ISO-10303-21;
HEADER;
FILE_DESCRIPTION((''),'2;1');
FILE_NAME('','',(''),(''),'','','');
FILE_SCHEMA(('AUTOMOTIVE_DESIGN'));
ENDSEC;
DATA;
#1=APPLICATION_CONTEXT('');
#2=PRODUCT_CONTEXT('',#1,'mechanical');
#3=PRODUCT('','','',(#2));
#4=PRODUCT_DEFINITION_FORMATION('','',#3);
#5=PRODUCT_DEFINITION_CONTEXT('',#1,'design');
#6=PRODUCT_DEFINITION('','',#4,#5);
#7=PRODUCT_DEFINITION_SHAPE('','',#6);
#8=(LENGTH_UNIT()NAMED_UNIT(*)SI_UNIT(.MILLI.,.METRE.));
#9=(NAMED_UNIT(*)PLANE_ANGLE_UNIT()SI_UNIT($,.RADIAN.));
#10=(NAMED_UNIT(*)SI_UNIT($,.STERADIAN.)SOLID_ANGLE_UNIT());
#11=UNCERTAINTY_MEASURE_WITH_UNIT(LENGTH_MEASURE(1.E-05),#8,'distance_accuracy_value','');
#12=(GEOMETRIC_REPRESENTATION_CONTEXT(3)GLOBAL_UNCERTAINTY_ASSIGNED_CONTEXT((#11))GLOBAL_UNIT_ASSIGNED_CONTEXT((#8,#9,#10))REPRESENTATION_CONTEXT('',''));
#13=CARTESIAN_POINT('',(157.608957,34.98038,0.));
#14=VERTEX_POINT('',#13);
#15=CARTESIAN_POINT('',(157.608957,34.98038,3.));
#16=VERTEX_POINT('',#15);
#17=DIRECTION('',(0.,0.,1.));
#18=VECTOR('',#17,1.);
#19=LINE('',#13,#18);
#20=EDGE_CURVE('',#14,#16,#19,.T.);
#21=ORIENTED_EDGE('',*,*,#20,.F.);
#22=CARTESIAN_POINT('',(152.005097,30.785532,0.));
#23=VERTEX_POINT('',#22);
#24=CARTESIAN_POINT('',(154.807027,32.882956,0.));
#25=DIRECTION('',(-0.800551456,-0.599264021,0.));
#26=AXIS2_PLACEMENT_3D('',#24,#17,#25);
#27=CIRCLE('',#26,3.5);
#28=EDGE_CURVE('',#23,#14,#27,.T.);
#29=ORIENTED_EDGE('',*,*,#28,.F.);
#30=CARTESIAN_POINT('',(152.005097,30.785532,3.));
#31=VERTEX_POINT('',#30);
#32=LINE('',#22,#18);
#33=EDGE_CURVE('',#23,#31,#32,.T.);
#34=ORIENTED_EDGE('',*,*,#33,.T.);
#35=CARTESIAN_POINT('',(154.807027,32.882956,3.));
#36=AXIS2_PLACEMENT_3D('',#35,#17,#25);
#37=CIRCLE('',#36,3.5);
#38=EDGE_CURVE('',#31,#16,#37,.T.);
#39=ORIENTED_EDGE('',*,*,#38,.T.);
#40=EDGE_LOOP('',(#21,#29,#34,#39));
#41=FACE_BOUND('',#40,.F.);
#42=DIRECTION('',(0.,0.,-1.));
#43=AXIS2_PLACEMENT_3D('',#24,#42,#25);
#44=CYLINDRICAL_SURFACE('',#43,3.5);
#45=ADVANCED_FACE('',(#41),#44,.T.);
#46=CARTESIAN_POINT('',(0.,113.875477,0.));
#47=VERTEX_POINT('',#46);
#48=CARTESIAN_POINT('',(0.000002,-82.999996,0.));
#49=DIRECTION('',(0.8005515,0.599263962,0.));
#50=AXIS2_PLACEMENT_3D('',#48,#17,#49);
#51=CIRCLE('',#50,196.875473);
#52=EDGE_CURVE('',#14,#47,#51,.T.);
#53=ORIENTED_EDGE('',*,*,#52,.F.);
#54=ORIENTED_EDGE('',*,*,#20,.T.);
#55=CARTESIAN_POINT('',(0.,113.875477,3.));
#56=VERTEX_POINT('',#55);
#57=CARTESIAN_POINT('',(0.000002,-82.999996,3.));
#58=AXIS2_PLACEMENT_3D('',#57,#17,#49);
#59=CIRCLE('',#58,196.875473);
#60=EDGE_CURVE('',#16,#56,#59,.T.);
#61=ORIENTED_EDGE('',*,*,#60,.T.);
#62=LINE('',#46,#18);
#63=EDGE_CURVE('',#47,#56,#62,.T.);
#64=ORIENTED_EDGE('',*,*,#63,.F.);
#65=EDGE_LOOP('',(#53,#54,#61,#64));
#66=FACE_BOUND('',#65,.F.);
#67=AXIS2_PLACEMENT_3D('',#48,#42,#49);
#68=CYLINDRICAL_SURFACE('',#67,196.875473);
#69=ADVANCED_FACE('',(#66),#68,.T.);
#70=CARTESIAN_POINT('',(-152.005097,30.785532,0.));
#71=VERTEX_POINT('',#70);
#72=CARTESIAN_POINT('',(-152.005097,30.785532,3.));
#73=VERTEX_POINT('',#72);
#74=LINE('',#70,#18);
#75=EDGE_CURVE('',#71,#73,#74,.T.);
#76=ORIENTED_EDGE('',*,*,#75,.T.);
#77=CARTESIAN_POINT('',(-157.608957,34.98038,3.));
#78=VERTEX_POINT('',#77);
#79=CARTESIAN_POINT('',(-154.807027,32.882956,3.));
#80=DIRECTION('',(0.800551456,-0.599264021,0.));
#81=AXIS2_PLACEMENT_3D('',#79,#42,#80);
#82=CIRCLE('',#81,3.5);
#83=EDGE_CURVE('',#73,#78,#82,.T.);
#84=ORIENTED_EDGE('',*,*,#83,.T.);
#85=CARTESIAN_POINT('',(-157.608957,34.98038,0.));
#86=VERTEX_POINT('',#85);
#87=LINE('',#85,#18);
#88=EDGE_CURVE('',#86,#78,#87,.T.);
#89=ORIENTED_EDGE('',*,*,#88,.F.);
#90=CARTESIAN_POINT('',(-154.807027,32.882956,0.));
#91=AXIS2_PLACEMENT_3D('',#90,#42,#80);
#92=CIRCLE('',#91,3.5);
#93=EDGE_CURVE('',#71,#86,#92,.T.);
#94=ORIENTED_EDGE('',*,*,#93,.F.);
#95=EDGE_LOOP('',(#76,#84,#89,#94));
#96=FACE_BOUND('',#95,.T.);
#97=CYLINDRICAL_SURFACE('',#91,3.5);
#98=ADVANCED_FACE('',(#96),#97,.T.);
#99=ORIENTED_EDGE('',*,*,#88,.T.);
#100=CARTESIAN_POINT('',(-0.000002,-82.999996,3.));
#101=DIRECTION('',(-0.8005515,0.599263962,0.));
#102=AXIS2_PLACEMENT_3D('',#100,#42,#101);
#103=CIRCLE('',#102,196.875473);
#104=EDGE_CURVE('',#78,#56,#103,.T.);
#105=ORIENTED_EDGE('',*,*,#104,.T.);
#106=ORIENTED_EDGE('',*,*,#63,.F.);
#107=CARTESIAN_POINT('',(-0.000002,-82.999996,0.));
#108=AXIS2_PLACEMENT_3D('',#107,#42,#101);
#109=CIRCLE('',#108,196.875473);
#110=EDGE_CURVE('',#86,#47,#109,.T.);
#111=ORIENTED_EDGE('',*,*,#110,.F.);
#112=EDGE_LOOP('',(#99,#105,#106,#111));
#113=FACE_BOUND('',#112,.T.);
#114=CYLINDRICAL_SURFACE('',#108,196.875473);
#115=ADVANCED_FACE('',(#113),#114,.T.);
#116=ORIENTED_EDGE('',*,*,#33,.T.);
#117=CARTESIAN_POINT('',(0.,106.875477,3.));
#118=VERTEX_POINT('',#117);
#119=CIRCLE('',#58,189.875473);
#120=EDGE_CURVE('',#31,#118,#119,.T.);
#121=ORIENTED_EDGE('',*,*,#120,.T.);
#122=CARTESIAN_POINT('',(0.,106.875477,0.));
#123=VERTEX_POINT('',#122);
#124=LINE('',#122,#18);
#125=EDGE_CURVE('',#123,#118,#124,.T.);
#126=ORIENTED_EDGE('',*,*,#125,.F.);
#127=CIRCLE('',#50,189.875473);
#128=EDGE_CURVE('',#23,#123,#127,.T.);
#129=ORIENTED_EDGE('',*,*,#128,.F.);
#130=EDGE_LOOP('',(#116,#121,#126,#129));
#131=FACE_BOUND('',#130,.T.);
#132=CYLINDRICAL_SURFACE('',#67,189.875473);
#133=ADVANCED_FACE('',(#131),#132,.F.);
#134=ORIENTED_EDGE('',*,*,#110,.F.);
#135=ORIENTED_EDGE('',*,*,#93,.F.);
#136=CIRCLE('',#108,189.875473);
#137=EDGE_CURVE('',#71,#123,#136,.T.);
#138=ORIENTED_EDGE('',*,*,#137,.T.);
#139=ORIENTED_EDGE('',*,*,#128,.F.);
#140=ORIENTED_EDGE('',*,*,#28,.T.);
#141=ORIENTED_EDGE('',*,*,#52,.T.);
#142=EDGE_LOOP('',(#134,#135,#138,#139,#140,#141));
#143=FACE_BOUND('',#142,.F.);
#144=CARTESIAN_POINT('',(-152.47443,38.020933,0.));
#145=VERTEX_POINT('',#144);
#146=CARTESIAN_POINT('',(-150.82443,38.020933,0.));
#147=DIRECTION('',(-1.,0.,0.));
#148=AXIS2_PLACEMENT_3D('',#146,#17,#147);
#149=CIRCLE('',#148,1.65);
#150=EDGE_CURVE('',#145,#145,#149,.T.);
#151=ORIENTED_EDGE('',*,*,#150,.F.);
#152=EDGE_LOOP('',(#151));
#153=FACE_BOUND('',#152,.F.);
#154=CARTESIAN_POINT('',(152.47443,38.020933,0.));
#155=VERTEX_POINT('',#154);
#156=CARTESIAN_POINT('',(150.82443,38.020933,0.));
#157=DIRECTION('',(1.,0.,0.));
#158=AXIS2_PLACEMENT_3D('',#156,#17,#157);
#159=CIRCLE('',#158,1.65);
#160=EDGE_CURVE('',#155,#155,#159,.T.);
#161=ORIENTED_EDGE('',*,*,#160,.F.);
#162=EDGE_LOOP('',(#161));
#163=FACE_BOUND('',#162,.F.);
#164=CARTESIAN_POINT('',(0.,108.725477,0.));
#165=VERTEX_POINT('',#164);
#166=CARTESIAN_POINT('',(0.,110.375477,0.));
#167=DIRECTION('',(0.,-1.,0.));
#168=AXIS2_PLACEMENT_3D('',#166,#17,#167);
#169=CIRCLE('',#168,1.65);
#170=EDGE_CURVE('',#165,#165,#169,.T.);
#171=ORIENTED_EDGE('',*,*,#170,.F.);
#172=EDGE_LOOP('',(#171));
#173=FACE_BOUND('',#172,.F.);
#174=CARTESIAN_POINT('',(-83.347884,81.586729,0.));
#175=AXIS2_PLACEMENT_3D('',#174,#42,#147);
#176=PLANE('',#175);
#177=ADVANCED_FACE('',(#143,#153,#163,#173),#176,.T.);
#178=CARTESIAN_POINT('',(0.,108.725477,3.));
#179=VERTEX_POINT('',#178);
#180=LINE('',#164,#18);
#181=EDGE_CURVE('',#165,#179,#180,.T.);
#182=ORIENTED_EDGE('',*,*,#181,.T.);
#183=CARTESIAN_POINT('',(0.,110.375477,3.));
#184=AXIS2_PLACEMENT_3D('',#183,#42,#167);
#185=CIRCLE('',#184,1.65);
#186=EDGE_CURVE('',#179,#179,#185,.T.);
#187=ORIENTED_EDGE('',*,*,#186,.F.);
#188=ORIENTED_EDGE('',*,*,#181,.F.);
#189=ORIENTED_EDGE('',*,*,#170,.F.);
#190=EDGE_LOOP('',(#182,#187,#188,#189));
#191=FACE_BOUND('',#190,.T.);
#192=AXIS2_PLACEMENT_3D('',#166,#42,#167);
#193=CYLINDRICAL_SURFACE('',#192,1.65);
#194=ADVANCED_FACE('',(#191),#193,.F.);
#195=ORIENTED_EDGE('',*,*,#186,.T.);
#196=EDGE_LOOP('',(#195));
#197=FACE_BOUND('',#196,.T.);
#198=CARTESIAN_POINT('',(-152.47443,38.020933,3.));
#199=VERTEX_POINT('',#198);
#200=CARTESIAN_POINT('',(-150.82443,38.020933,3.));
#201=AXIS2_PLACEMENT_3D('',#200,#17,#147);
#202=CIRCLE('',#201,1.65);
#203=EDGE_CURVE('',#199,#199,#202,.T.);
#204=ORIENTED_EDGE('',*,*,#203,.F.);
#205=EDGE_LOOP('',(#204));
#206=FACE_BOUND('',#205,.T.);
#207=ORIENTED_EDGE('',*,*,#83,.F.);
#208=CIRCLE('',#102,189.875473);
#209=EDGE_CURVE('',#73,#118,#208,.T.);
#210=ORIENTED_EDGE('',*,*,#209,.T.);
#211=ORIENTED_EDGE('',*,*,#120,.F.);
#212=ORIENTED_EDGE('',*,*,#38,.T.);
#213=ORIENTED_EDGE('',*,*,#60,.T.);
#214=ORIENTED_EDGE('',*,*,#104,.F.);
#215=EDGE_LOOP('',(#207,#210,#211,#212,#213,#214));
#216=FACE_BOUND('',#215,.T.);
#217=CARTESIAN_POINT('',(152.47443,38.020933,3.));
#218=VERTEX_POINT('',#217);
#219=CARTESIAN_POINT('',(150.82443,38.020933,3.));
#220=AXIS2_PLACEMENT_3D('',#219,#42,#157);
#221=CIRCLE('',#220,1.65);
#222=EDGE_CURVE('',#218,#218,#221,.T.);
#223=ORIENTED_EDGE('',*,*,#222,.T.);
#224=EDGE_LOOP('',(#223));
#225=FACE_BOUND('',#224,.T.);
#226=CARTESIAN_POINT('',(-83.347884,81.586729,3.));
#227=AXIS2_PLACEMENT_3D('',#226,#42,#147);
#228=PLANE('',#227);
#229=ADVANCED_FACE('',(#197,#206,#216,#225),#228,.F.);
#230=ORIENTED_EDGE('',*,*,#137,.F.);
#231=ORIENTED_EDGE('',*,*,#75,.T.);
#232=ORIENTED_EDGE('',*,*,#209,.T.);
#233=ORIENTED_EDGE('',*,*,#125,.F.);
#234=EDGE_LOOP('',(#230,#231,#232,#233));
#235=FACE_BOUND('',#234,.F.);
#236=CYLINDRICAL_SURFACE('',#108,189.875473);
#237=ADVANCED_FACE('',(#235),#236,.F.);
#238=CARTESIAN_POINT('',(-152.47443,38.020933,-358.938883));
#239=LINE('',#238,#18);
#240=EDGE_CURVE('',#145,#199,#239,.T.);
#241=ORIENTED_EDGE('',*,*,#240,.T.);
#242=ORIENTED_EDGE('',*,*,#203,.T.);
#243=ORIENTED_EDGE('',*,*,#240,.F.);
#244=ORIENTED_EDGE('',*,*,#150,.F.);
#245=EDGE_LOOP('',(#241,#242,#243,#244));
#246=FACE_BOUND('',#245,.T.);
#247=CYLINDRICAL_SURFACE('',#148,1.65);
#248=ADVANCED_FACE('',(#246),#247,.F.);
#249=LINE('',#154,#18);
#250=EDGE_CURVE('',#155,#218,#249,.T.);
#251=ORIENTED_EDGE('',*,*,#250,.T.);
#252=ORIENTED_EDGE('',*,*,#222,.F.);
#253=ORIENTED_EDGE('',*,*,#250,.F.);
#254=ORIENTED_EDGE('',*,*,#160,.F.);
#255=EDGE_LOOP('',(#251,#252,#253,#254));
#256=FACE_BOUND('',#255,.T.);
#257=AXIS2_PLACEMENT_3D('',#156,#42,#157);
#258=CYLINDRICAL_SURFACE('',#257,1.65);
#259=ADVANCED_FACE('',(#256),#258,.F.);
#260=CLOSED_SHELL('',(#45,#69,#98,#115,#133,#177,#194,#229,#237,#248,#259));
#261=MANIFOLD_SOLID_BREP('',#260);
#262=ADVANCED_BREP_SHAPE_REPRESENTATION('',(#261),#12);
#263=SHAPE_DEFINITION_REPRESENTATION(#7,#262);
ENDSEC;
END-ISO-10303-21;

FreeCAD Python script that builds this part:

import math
import FreeCAD as App
import Part
import Sketcher

doc = App.newDocument("Part")
params = doc.addObject("Spreadsheet::Sheet", "Params")
for row, (alias, value) in enumerate([
    ("sketch1_radius", "3.5 mm"),
    ("pad1_length", "3 mm"),
    ("sketch2_diameter", "3.3 mm"),
], start=1):
    params.set(f"A{row}", alias)
    params.set(f"B{row}", "=" + value)
    params.setAlias(f"B{row}", alias)

body = doc.addObject("PartDesign::Body", "Body")

sketch1 = body.newObject("Sketcher::SketchObject", "Sketch")
sketch1.AttachmentSupport = (doc.getObject("XY_Plane"), [""])
sketch1.MapMode = "FlatFace"
sketch1.addGeometry([
    Part.ArcOfCircle(Part.Circle(App.Vector(0, 0, 0), App.Vector(0, 0, 1), 189.9), math.radians(37), math.radians(90)),
    Part.ArcOfCircle(Part.Circle(App.Vector(154.8, 115.9, 0), App.Vector(0, 0, 1), 3.5), math.radians(-143), math.radians(37)),
    Part.ArcOfCircle(Part.Circle(App.Vector(0, 0, 0), App.Vector(0, 0, 1), 196.9), math.radians(37), math.radians(90)),
    Part.LineSegment(App.Vector(0, 196.9, 0), App.Vector(0, 189.9, 0)),
], False)
sketch1.addConstraint([
    Sketcher.Constraint("Tangent", 0, 1, 1, 1),
    Sketcher.Constraint("Tangent", 1, 2, 2, 1),
    Sketcher.Constraint("Coincident", 2, 2, 3, 1),
    Sketcher.Constraint("Coincident", 3, 2, 0, 2),
    Sketcher.Constraint("Vertical", 3),
    Sketcher.Constraint("Coincident", 0, 3, -1, 1),
    Sketcher.Constraint("Coincident", 2, 3, -1, 1),
    Sketcher.Constraint("PointOnObject", 2, 2, -2),
    Sketcher.Constraint("Radius", 1, 3.5),
    Sketcher.Constraint("Radius", 0, 189.875473),
    Sketcher.Constraint("DistanceY", -1, 1, 1, 2, 117.98038),
])
sketch1.setExpression("Constraints[8]", "Params.sketch1_radius")
pad1 = body.newObject("PartDesign::Pad", "Pad")
pad1.Profile = sketch1
pad1.setExpression("Length", "Params.pad1_length")

sketch2 = body.newObject("Sketcher::SketchObject", "Sketch001")
sketch2.AttachmentSupport = (doc.getObject("XY_Plane"), [""])
sketch2.MapMode = "FlatFace"
sketch2.addGeometry([
    Part.Circle(App.Vector(150.8, 121, 0), App.Vector(0, 0, 1), 1.6),
    Part.ArcOfCircle(Part.Circle(App.Vector(0, 193.4, 0), App.Vector(0, 0, 1), 1.6), math.radians(-90), math.radians(90)),
    Part.LineSegment(App.Vector(0, 195, 0), App.Vector(0, 191.7, 0)),
], False)
sketch2.addConstraint([
    Sketcher.Constraint("Coincident", 1, 1, 2, 2),
    Sketcher.Constraint("Coincident", 2, 1, 1, 2),
    Sketcher.Constraint("Vertical", 2),
    Sketcher.Constraint("Equal", 0, 1),
    Sketcher.Constraint("PointOnObject", 1, 3, -2),
    Sketcher.Constraint("PointOnObject", 1, 1, -2),
    Sketcher.Constraint("Diameter", 0, 3.3),
    Sketcher.Constraint("DistanceX", -1, 1, 0, 3, 150.82443),
    Sketcher.Constraint("DistanceY", -1, 1, 0, 3, 121.020933),
    Sketcher.Constraint("DistanceY", -1, 1, 1, 3, 193.375477),
])
sketch2.setExpression("Constraints[6]", "Params.sketch2_diameter")
pocket1 = body.newObject("PartDesign::Pocket", "Pocket")
pocket1.Profile = sketch2
pocket1.Type = "ThroughAll"
pocket1.Midplane = True
doc.recompute()

mirrored = body.newObject("PartDesign::Mirrored", "Mirrored")
mirrored.Originals = [pad1, pocket1]
mirrored.MirrorPlane = (doc.getObject("YZ_Plane"), [""])
body.Tip = mirrored
body2 = doc.addObject("PartDesign::Body", "Body001")
doc.recompute()

body.Placement = App.Placement(App.Vector(0, 0, 0), App.Rotation(App.Vector(0, 0, 1), 60))
boolean = body2.newObject("PartDesign::Boolean", "Boolean")
boolean.Type = "Fuse"
boolean.addObjects([body])
body3 = doc.addObject("PartDesign::Body", "Body002")
doc.recompute()

body2.Placement = App.Placement(App.Vector(0, -83, 0), App.Rotation(App.Vector(0, 0, -1), 60))
boolean2 = body3.newObject("PartDesign::Boolean", "Boolean001")
boolean2.Type = "Fuse"
boolean2.addObjects([body2])

doc.recompute()
